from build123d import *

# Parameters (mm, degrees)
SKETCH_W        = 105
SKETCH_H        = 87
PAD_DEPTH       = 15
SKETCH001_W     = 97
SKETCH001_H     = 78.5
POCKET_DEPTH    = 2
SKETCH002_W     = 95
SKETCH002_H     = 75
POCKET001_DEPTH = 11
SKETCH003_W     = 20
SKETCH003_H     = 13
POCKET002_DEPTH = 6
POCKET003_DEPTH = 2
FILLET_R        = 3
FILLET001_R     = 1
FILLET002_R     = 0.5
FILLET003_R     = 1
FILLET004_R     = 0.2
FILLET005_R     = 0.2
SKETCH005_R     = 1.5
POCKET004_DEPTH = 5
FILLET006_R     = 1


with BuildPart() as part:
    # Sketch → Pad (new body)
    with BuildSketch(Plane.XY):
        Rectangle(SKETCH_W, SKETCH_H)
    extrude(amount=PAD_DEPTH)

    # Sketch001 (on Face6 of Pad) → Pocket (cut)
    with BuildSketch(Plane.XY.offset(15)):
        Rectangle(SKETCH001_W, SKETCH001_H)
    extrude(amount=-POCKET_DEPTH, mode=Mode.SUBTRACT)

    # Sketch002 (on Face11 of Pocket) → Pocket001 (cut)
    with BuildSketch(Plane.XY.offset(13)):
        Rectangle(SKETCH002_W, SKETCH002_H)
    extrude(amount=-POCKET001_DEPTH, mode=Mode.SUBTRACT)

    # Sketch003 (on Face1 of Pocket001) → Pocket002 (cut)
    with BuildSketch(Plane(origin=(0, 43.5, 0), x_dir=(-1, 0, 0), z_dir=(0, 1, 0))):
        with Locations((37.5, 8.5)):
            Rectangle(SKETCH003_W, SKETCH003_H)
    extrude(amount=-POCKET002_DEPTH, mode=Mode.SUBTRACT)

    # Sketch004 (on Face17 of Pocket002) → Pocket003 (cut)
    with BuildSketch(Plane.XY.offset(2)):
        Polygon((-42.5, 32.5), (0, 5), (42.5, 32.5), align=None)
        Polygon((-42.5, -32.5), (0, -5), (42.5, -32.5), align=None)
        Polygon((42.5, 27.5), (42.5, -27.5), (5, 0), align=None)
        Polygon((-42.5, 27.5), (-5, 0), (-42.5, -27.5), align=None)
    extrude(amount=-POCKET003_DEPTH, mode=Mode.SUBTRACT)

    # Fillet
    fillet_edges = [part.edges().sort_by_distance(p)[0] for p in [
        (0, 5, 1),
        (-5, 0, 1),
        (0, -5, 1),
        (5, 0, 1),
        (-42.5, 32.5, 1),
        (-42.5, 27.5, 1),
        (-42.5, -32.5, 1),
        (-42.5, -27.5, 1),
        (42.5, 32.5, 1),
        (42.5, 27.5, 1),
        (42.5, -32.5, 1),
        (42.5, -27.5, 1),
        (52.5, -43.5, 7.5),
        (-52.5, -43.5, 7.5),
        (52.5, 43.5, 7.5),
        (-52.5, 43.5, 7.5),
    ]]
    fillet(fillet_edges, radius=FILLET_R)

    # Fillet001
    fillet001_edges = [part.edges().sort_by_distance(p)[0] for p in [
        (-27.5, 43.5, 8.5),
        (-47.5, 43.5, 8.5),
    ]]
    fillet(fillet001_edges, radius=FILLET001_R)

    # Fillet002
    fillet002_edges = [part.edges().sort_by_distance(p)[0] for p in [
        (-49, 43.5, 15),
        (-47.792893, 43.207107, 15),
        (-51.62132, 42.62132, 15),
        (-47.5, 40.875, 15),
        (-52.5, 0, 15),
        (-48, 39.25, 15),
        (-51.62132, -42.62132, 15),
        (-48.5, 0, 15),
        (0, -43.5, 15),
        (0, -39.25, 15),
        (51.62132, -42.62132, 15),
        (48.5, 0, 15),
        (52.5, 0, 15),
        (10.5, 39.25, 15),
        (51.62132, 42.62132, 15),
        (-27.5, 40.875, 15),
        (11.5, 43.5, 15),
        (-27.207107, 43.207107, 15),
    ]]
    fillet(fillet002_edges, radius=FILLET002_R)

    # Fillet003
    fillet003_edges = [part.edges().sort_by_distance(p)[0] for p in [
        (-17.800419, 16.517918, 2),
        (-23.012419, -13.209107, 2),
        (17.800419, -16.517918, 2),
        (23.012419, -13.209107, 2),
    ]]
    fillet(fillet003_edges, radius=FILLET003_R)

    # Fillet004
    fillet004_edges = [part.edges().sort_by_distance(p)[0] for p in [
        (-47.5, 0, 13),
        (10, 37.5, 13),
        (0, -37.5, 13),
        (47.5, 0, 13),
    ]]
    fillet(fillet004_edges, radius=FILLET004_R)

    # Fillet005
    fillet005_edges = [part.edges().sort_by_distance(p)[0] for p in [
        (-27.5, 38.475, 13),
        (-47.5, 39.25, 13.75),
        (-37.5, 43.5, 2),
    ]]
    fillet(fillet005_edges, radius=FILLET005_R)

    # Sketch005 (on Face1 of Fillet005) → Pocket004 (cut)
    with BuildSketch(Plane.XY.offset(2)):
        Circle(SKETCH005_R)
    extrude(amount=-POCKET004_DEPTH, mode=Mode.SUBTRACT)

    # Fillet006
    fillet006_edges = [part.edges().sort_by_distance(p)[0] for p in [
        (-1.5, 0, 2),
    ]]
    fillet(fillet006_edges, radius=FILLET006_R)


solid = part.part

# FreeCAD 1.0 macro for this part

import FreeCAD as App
import Part
import Sketcher
Q = App.Units.Quantity


def edges_at(feature, points):
    """Names of the edges that pass closest to the given points."""
    edges = feature.Shape.Edges
    near = lambda p: min(range(len(edges)), key=lambda i: edges[i].distToShape(Part.Vertex(*p))[0])
    return sorted({f"Edge{near(p) + 1}" for p in points})

doc = App.newDocument("Part")
body = doc.addObject("PartDesign::Body", "Body")

# Sketch on XY plane
sketch1 = doc.addObject("Sketcher::SketchObject", "Sketch")
body.addObject(sketch1)
sketch1.AttachmentSupport = (doc.XY_Plane, [""])
sketch1.MapMode = "FlatFace"
sketch1.addGeometry([
    Part.LineSegment(App.Vector(-52, 44, 0), App.Vector(-52, -44, 0)),
    Part.LineSegment(App.Vector(-52, -44, 0), App.Vector(52, -44, 0)),
    Part.LineSegment(App.Vector(52, -44, 0), App.Vector(52, 44, 0)),
    Part.LineSegment(App.Vector(52, 44, 0), App.Vector(-52, 44, 0)),
], False)
sketch1.addConstraint([
    Sketcher.Constraint("Coincident", 0, 2, 1, 1),
    Sketcher.Constraint("Coincident", 1, 2, 2, 1),
    Sketcher.Constraint("Coincident", 2, 2, 3, 1),
    Sketcher.Constraint("Coincident", 3, 2, 0, 1),
    Sketcher.Constraint("Vertical", 0),
    Sketcher.Constraint("Horizontal", 1),
    Sketcher.Constraint("Vertical", 2),
    Sketcher.Constraint("Horizontal", 3),
    Sketcher.Constraint("Symmetric", 0, 2, 2, 2, -1, 1),
    Sketcher.Constraint("DistanceX", 1, 1, 1, 2, Q("105 mm")),
    Sketcher.Constraint("DistanceY", 0, 2, 0, 1, Q("87 mm")),
])
pad1 = doc.addObject("PartDesign::Pad", "Pad")
body.addObject(pad1)
pad1.Profile = sketch1
pad1.Length = 15

# Sketch on XY plane
sketch2 = doc.addObject("Sketcher::SketchObject", "Sketch001")
body.addObject(sketch2)
sketch2.AttachmentSupport = (doc.XY_Plane, [""])
sketch2.MapMode = "FlatFace"
sketch2.AttachmentOffset = App.Placement(App.Vector(0, 0, 15), App.Rotation())
sketch2.addGeometry([
    Part.LineSegment(App.Vector(-48, 39, 0), App.Vector(-48, -39, 0)),
    Part.LineSegment(App.Vector(-48, -39, 0), App.Vector(48, -39, 0)),
    Part.LineSegment(App.Vector(48, -39, 0), App.Vector(48, 39, 0)),
    Part.LineSegment(App.Vector(48, 39, 0), App.Vector(-48, 39, 0)),
], False)
sketch2.addConstraint([
    Sketcher.Constraint("Coincident", 0, 2, 1, 1),
    Sketcher.Constraint("Coincident", 1, 2, 2, 1),
    Sketcher.Constraint("Coincident", 2, 2, 3, 1),
    Sketcher.Constraint("Coincident", 3, 2, 0, 1),
    Sketcher.Constraint("Vertical", 0),
    Sketcher.Constraint("Horizontal", 1),
    Sketcher.Constraint("Vertical", 2),
    Sketcher.Constraint("Horizontal", 3),
    Sketcher.Constraint("Symmetric", 0, 2, 2, 2, -1, 1),
    Sketcher.Constraint("DistanceX", 1, 1, 1, 2, Q("97 mm")),
    Sketcher.Constraint("DistanceY", 0, 2, 0, 1, Q("78.5 mm")),
])
pocket1 = doc.addObject("PartDesign::Pocket", "Pocket")
body.addObject(pocket1)
pocket1.Profile = sketch2
pocket1.Length = 2

# Sketch on XY plane
sketch3 = doc.addObject("Sketcher::SketchObject", "Sketch002")
body.addObject(sketch3)
sketch3.AttachmentSupport = (doc.XY_Plane, [""])
sketch3.MapMode = "FlatFace"
sketch3.AttachmentOffset = App.Placement(App.Vector(0, 0, 13), App.Rotation())
sketch3.addGeometry([
    Part.LineSegment(App.Vector(-48, 38, 0), App.Vector(-48, -38, 0)),
    Part.LineSegment(App.Vector(-48, -38, 0), App.Vector(48, -38, 0)),
    Part.LineSegment(App.Vector(48, -38, 0), App.Vector(48, 38, 0)),
    Part.LineSegment(App.Vector(48, 38, 0), App.Vector(-48, 38, 0)),
], False)
sketch3.addConstraint([
    Sketcher.Constraint("Coincident", 0, 2, 1, 1),
    Sketcher.Constraint("Coincident", 1, 2, 2, 1),
    Sketcher.Constraint("Coincident", 2, 2, 3, 1),
    Sketcher.Constraint("Coincident", 3, 2, 0, 1),
    Sketcher.Constraint("Vertical", 0),
    Sketcher.Constraint("Horizontal", 1),
    Sketcher.Constraint("Vertical", 2),
    Sketcher.Constraint("Horizontal", 3),
    Sketcher.Constraint("Symmetric", 0, 2, 2, 2, -1, 1),
    Sketcher.Constraint("DistanceX", 1, 1, 1, 2, Q("95 mm")),
    Sketcher.Constraint("DistanceY", 0, 2, 0, 1, Q("75 mm")),
])
pocket2 = doc.addObject("PartDesign::Pocket", "Pocket001")
body.addObject(pocket2)
pocket2.Profile = sketch3
pocket2.Length = 11

# Sketch on XZ plane
sketch4 = doc.addObject("Sketcher::SketchObject", "Sketch003")
body.addObject(sketch4)
sketch4.AttachmentSupport = (doc.XZ_Plane, [""])
sketch4.MapMode = "FlatFace"
sketch4.AttachmentOffset = App.Placement(App.Vector(0, 0, -43.5), App.Rotation())
sketch4.addGeometry([
    Part.LineSegment(App.Vector(-28, 15, 0), App.Vector(-28, 2, 0)),
    Part.LineSegment(App.Vector(-28, 2, 0), App.Vector(-48, 2, 0)),
    Part.LineSegment(App.Vector(-48, 2, 0), App.Vector(-48, 15, 0)),
    Part.LineSegment(App.Vector(-48, 15, 0), App.Vector(-28, 15, 0)),
], False)
sketch4.addConstraint([
    Sketcher.Constraint("Coincident", 0, 2, 1, 1),
    Sketcher.Constraint("Coincident", 1, 2, 2, 1),
    Sketcher.Constraint("Coincident", 2, 2, 3, 1),
    Sketcher.Constraint("Coincident", 3, 2, 0, 1),
    Sketcher.Constraint("Vertical", 0),
    Sketcher.Constraint("Horizontal", 1),
    Sketcher.Constraint("Vertical", 2),
    Sketcher.Constraint("Horizontal", 3),
    Sketcher.Constraint("DistanceX", 1, 2, 1, 1, Q("20 mm")),
    Sketcher.Constraint("DistanceY", 0, 2, 0, 1, Q("13 mm")),
    Sketcher.Constraint("DistanceY", -1, 1, 0, 2, Q("2 mm")),
    Sketcher.Constraint("DistanceX", 0, 2, -1, 1, Q("27.5 mm")),
])
pocket3 = doc.addObject("PartDesign::Pocket", "Pocket002")
body.addObject(pocket3)
pocket3.Profile = sketch4
pocket3.Length = 6
pocket3.Reversed = True

# Sketch on XY plane
sketch5 = doc.addObject("Sketcher::SketchObject", "Sketch004")
body.addObject(sketch5)
sketch5.AttachmentSupport = (doc.XY_Plane, [""])
sketch5.MapMode = "FlatFace"
sketch5.AttachmentOffset = App.Placement(App.Vector(0, 0, 2), App.Rotation())
sketch5.addGeometry([
    Part.LineSegment(App.Vector(-42, 32, 0), App.Vector(0, 5, 0)),  # 0
    Part.LineSegment(App.Vector(0, 5, 0), App.Vector(42, 32, 0)),  # 1
    Part.LineSegment(App.Vector(42, 32, 0), App.Vector(-42, 32, 0)),  # 2
    Part.LineSegment(App.Vector(0, -5, 0), App.Vector(-42, -32, 0)),  # 3
    Part.LineSegment(App.Vector(-42, -32, 0), App.Vector(42, -32, 0)),  # 4
    Part.LineSegment(App.Vector(42, -32, 0), App.Vector(0, -5, 0)),  # 5
    Part.LineSegment(App.Vector(42, -28, 0), App.Vector(42, 28, 0)),  # 6
    Part.LineSegment(App.Vector(42, 28, 0), App.Vector(5, 0, 0)),  # 7
    Part.LineSegment(App.Vector(5, 0, 0), App.Vector(42, -28, 0)),  # 8
    Part.LineSegment(App.Vector(-5, 0, 0), App.Vector(-42, 28, 0)),  # 9
    Part.LineSegment(App.Vector(-42, 28, 0), App.Vector(-42, -28, 0)),  # 10
    Part.LineSegment(App.Vector(-42, -28, 0), App.Vector(-5, 0, 0)),  # 11
], False)
sketch5.addConstraint([
    Sketcher.Constraint("Coincident", 0, 2, 1, 1),
    Sketcher.Constraint("Coincident", 1, 2, 2, 1),
    Sketcher.Constraint("Coincident", 2, 2, 0, 1),
    Sketcher.Constraint("Coincident", 3, 2, 4, 1),
    Sketcher.Constraint("Coincident", 4, 2, 5, 1),
    Sketcher.Constraint("Coincident", 5, 2, 3, 1),
    Sketcher.Constraint("Coincident", 6, 2, 7, 1),
    Sketcher.Constraint("Coincident", 7, 2, 8, 1),
    Sketcher.Constraint("Coincident", 8, 2, 6, 1),
    Sketcher.Constraint("Coincident", 9, 2, 10, 1),
    Sketcher.Constraint("Coincident", 10, 2, 11, 1),
    Sketcher.Constraint("Coincident", 11, 2, 9, 1),
    Sketcher.Constraint("Horizontal", 2),
    Sketcher.Constraint("Horizontal", 4),
    Sketcher.Constraint("Vertical", 6),
    Sketcher.Constraint("Vertical", 10),
    Sketcher.Constraint("Symmetric", 1, 2, 3, 2, -1, 1),
    Sketcher.Constraint("Symmetric", 0, 2, 5, 2, -1, 1),
    Sketcher.Constraint("Symmetric", 8, 2, 9, 2, -1, 1),
    Sketcher.Constraint("Symmetric", 7, 2, 11, 2, -1, 1),
    Sketcher.Constraint("PointOnObject", 0, 2, -2),
    Sketcher.Constraint("PointOnObject", 7, 2, -1),
    Sketcher.Constraint("Parallel", 0, 5),
    Sketcher.Constraint("Parallel", 7, 11),
    Sketcher.Constraint("Horizontal", 6, 2, 9, 2),
    Sketcher.Constraint("Vertical", 2, 2, 3, 2),
    Sketcher.Constraint("Vertical", 4, 2, 6, 2),
    Sketcher.Constraint("DistanceX", 2, 2, 2, 1, Q("85 mm")),
    Sketcher.Constraint("DistanceY", 6, 1, 6, 2, Q("55 mm")),
    Sketcher.Constraint("DistanceY", -1, 1, 0, 2, Q("5 mm")),
    Sketcher.Constraint("DistanceX", -1, 1, 7, 2, Q("5 mm")),
    Sketcher.Constraint("DistanceY", 3, 2, 2, 2, Q("65 mm")),
])
pocket4 = doc.addObject("PartDesign::Pocket", "Pocket003")
body.addObject(pocket4)
pocket4.Profile = sketch5
pocket4.Length = 2
doc.recompute()

fillet = doc.addObject("PartDesign::Fillet", "Fillet")
body.addObject(fillet)
fillet.Base = (pocket4, edges_at(pocket4, [
    (0, 5, 1),
    (-5, 0, 1),
    (0, -5, 1),
    (5, 0, 1),
    (-42.5, 32.5, 1),
    (-42.5, 27.5, 1),
    (-42.5, -32.5, 1),
    (-42.5, -27.5, 1),
    (42.5, 32.5, 1),
    (42.5, 27.5, 1),
    (42.5, -32.5, 1),
    (42.5, -27.5, 1),
    (52.5, -43.5, 7.5),
    (-52.5, -43.5, 7.5),
    (52.5, 43.5, 7.5),
    (-52.5, 43.5, 7.5),
]))
fillet.Radius = 3
doc.recompute()

fillet2 = doc.addObject("PartDesign::Fillet", "Fillet001")
body.addObject(fillet2)
fillet2.Base = (fillet, edges_at(fillet, [(-27.5, 43.5, 8.5), (-47.5, 43.5, 8.5)]))
fillet2.Radius = 1
doc.recompute()

fillet3 = doc.addObject("PartDesign::Fillet", "Fillet002")
body.addObject(fillet3)
fillet3.Base = (fillet2, edges_at(fillet2, [
    (-49, 43.5, 15),
    (-47.793, 43.207, 15),
    (-51.621, 42.621, 15),
    (-47.5, 40.875, 15),
    (-52.5, 0, 15),
    (-48, 39.25, 15),
    (-51.621, -42.621, 15),
    (-48.5, 0, 15),
    (0, -43.5, 15),
    (0, -39.25, 15),
    (51.621, -42.621, 15),
    (48.5, 0, 15),
    (52.5, 0, 15),
    (10.5, 39.25, 15),
    (51.621, 42.621, 15),
    (-27.5, 40.875, 15),
    (11.5, 43.5, 15),
    (-27.207, 43.207, 15),
]))
fillet3.Radius = 0.5
doc.recompute()

fillet4 = doc.addObject("PartDesign::Fillet", "Fillet003")
body.addObject(fillet4)
fillet4.Base = (fillet3, edges_at(fillet3, [
    (-17.8, 16.518, 2),
    (-23.012, -13.209, 2),
    (17.8, -16.518, 2),
    (23.012, -13.209, 2),
]))
fillet4.Radius = 1
doc.recompute()

fillet5 = doc.addObject("PartDesign::Fillet", "Fillet004")
body.addObject(fillet5)
fillet5.Base = (fillet4, edges_at(fillet4, [
    (-47.5, 0.875, 13),
    (10, 37.5, 13),
    (0, -37.5, 13),
    (47.5, 0, 13),
]))
fillet5.Radius = 0.2
doc.recompute()

fillet6 = doc.addObject("PartDesign::Fillet", "Fillet005")
body.addObject(fillet6)
fillet6.Base = (fillet5, edges_at(fillet5, [(-27.5, 38.475, 13), (-47.5, 39.25, 13.65), (-37.5, 43.5, 2)]))
fillet6.Radius = 0.2

# Sketch on XY plane
sketch6 = doc.addObject("Sketcher::SketchObject", "Sketch005")
body.addObject(sketch6)
sketch6.AttachmentSupport = (doc.XY_Plane, [""])
sketch6.MapMode = "FlatFace"
sketch6.AttachmentOffset = App.Placement(App.Vector(0, 0, 2), App.Rotation())
sketch6.addGeometry(Part.Circle(App.Vector(0, 0, 0), App.Vector(0, 0, 1), 1.5), False)
sketch6.addConstraint([
    Sketcher.Constraint("Coincident", 0, 3, -1, 1),
    Sketcher.Constraint("Diameter", 0, Q("3 mm")),
])
pocket5 = doc.addObject("PartDesign::Pocket", "Pocket004")
body.addObject(pocket5)
pocket5.Profile = sketch6
pocket5.Length = 5
doc.recompute()

fillet7 = doc.addObject("PartDesign::Fillet", "Fillet006")
body.addObject(fillet7)
fillet7.Base = (pocket5, edges_at(pocket5, [(-1.5, 0, 2)]))
fillet7.Radius = 1

doc.recompute()
